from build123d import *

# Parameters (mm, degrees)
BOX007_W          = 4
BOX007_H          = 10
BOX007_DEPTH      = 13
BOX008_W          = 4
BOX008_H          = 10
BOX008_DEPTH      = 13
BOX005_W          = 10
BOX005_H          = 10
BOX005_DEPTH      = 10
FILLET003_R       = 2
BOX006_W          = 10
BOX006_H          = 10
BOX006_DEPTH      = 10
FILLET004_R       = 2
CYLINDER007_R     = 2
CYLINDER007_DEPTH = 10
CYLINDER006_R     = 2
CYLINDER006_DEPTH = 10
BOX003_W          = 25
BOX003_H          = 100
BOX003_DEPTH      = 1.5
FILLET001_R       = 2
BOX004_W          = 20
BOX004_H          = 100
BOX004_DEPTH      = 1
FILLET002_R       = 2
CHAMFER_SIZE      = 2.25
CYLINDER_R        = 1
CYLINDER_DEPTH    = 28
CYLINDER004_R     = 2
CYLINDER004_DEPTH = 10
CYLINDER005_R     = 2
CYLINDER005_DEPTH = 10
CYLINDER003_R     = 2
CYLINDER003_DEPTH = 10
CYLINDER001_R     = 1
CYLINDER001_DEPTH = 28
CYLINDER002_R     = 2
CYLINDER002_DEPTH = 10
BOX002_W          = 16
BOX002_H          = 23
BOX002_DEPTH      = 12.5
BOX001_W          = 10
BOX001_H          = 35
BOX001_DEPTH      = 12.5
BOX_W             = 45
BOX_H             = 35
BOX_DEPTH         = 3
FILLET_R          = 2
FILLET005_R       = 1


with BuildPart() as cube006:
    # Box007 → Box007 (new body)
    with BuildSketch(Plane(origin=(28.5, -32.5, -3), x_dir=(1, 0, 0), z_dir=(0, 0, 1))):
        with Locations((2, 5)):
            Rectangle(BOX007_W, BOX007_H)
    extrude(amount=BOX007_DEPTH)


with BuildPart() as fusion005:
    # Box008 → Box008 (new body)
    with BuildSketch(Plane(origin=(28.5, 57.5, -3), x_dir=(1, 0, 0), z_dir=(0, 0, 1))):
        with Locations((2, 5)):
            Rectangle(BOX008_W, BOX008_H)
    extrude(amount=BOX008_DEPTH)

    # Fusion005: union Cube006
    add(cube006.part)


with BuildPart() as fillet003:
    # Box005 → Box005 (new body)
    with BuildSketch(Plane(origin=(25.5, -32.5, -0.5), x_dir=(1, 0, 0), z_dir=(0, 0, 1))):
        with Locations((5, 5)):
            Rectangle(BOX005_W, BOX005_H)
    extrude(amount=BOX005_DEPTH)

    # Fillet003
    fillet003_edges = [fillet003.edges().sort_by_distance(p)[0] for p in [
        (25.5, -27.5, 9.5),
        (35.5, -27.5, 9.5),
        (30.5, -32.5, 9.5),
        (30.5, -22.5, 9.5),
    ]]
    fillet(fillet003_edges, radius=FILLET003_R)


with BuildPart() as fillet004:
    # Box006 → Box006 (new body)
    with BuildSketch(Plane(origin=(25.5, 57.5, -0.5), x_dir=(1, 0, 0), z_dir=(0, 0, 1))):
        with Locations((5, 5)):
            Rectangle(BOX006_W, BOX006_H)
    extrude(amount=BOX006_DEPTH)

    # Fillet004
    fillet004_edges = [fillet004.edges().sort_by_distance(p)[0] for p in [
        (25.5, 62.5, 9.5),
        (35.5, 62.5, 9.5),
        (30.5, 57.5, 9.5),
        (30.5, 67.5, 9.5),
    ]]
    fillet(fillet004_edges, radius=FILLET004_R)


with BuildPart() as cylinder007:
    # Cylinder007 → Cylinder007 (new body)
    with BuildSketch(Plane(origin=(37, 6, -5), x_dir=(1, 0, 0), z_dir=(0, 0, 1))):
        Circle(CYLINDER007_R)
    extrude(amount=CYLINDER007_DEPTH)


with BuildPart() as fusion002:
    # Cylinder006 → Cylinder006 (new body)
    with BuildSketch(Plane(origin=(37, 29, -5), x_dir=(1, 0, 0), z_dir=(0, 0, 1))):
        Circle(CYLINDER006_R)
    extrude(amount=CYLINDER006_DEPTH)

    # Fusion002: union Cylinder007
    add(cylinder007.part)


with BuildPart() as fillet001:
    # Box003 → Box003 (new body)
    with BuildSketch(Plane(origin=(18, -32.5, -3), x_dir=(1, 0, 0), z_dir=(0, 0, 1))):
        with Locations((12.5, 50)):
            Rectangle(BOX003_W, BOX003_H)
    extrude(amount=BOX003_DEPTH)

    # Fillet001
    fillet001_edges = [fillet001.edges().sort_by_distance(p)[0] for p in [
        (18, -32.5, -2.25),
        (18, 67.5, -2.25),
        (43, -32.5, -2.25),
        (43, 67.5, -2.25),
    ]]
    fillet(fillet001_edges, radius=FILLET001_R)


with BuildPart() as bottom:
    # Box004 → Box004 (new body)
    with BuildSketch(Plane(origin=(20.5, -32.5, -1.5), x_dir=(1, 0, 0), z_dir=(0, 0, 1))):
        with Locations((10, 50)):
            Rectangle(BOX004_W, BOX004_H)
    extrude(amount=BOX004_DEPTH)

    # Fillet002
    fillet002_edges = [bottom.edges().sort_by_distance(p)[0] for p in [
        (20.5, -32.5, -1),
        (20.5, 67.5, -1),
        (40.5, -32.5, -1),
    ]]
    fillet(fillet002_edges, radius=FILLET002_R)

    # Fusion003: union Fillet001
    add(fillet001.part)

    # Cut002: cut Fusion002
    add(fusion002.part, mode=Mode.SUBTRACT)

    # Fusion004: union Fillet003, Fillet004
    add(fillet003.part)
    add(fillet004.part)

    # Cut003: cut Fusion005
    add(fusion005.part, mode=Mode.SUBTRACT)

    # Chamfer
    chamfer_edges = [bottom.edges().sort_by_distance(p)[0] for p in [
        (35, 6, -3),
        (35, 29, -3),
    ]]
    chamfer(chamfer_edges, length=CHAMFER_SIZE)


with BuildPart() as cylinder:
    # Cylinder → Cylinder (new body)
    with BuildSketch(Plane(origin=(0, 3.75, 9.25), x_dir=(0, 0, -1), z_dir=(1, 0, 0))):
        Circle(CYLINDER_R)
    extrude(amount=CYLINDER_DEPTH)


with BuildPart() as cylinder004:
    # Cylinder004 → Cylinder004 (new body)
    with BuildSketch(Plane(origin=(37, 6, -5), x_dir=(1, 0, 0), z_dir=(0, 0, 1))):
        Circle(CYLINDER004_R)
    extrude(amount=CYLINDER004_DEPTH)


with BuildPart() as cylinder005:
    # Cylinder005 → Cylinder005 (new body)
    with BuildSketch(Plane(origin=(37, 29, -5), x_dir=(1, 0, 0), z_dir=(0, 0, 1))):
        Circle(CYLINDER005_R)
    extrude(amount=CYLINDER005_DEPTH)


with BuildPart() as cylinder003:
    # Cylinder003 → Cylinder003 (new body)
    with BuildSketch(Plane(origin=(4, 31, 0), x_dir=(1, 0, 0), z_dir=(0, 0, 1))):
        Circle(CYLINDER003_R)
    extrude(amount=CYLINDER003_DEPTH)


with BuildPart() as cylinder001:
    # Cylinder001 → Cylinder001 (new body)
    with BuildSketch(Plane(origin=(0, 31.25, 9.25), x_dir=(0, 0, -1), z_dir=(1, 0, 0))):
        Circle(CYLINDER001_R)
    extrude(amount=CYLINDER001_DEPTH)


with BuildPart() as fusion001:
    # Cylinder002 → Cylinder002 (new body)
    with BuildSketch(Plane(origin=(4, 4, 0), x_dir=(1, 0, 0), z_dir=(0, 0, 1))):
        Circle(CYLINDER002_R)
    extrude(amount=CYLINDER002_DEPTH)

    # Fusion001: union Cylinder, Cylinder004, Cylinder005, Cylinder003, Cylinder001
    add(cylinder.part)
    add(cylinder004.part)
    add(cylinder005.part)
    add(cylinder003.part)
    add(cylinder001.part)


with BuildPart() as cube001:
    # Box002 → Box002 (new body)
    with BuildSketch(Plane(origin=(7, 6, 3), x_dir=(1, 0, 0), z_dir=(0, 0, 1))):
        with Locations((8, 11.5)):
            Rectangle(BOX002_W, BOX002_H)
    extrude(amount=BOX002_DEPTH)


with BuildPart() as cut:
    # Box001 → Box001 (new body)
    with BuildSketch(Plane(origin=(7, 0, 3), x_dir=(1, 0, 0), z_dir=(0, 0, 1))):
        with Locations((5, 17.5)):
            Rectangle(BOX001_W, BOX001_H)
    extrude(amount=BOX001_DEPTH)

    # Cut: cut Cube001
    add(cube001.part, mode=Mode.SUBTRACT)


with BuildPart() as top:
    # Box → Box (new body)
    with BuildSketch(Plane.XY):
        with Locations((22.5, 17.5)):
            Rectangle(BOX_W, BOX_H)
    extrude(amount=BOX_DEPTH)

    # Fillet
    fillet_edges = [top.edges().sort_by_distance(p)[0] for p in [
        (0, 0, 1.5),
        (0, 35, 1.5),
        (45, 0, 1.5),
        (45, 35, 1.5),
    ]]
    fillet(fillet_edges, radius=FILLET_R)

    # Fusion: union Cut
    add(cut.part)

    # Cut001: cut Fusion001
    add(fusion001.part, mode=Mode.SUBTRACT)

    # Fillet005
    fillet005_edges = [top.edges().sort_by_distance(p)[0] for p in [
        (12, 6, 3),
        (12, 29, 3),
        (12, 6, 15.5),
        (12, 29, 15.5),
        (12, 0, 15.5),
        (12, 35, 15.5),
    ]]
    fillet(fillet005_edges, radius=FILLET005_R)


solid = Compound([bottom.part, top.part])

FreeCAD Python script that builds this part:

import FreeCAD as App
import Part
import Sketcher

V = App.Vector
Q = App.Units.Quantity


def edges_at(feature, points):
    """Names of the edges that pass closest to the given points."""
    edges = feature.Shape.Edges
    near = lambda p: min(range(len(edges)), key=lambda i: edges[i].distToShape(Part.Vertex(*p))[0])
    return sorted({f"Edge{near(p) + 1}" for p in points})


def add_polygon(sketch, points):
    """Adds a closed chain of lines whose ends are joined by coincident constraints."""
    first, n = sketch.GeometryCount, len(points)
    for a, b in zip(points, points[1:] + points[:1]):
        sketch.addGeometry(Part.LineSegment(App.Vector(*a, 0), App.Vector(*b, 0)), False)
    for i in range(n):
        sketch.addConstraint(Sketcher.Constraint("Coincident", first + i, 2, first + (i + 1) % n, 1))

doc = App.newDocument("Part")
body = doc.addObject("PartDesign::Body", "Body")

# Sketch on XY plane
sketch1 = body.newObject("Sketcher::SketchObject", "Sketch")
sketch1.AttachmentSupport = (doc.getObject("XY_Plane"), [""])
sketch1.MapMode = "FlatFace"
sketch1.AttachmentOffset = App.Placement(V(0, 0, -3), App.Rotation())
add_polygon(sketch1, [(28.5, -22.5), (28.5, -32.5), (32.5, -32.5), (32.5, -22.5)])  # lines 0-3
sketch1.addConstraint([
    Sketcher.Constraint("Vertical", 0),
    Sketcher.Constraint("Horizontal", 1),
    Sketcher.Constraint("Vertical", 2),
    Sketcher.Constraint("Horizontal", 3),
    Sketcher.Constraint("DistanceX", 1, 1, 1, 2, Q("4 mm")),
    Sketcher.Constraint("DistanceY", 0, 2, 0, 1, Q("10 mm")),
    Sketcher.Constraint("DistanceX", -1, 1, 0, 2, Q("28.5 mm")),
    Sketcher.Constraint("DistanceY", 0, 2, -1, 1, Q("32.5 mm")),
])
pad1 = body.newObject("PartDesign::Pad", "Pad")
pad1.Profile = sketch1
pad1.Length = 13
body2 = doc.addObject("PartDesign::Body", "Body001")
body2.AllowCompound = True

# Sketch on XY plane
sketch2 = body2.newObject("Sketcher::SketchObject", "Sketch001")
sketch2.AttachmentSupport = (doc.getObject("XY_Plane001"), [""])
sketch2.MapMode = "FlatFace"
sketch2.AttachmentOffset = App.Placement(V(0, 0, -3), App.Rotation())
add_polygon(sketch2, [(28.5, 67.5), (28.5, 57.5), (32.5, 57.5), (32.5, 67.5)])  # lines 0-3
sketch2.addConstraint([
    Sketcher.Constraint("Vertical", 0),
    Sketcher.Constraint("Horizontal", 1),
    Sketcher.Constraint("Vertical", 2),
    Sketcher.Constraint("Horizontal", 3),
    Sketcher.Constraint("DistanceX", 1, 1, 1, 2, Q("4 mm")),
    Sketcher.Constraint("DistanceY", 0, 2, 0, 1, Q("10 mm")),
    Sketcher.Constraint("DistanceX", -1, 1, 0, 2, Q("28.5 mm")),
    Sketcher.Constraint("DistanceY", -1, 1, 0, 2, Q("57.5 mm")),
])
pad2 = body2.newObject("PartDesign::Pad", "Pad001")
pad2.Profile = sketch2
pad2.Length = 13
doc.recompute()

boolean = body2.newObject("PartDesign::Boolean", "Boolean")
boolean.Type = "Fuse"
boolean.addObjects([body])
body3 = doc.addObject("PartDesign::Body", "Body002")

# Sketch on XY plane
sketch3 = body3.newObject("Sketcher::SketchObject", "Sketch002")
sketch3.AttachmentSupport = (doc.getObject("XY_Plane002"), [""])
sketch3.MapMode = "FlatFace"
sketch3.AttachmentOffset = App.Placement(V(0, 0, -0.5), App.Rotation())
add_polygon(sketch3, [(26, -22), (26, -32), (36, -32), (36, -22)])  # lines 0-3
sketch3.addConstraint([
    Sketcher.Constraint("Vertical", 0),
    Sketcher.Constraint("Horizontal", 1),
    Sketcher.Constraint("Vertical", 2),
    Sketcher.Constraint("Horizontal", 3),
    Sketcher.Constraint("Equal", 3, 0),
    Sketcher.Constraint("DistanceX", 1, 1, 1, 2, Q("10 mm")),
    Sketcher.Constraint("DistanceX", -1, 1, 0, 2, Q("25.5 mm")),
    Sketcher.Constraint("DistanceY", 0, 2, -1, 1, Q("32.5 mm")),
])
pad3 = body3.newObject("PartDesign::Pad", "Pad002")
pad3.Profile = sketch3
pad3.Length = 10
doc.recompute()

fillet = body3.newObject("PartDesign::Fillet", "Fillet")
fillet.Base = (pad3, edges_at(pad3, [
    (25.5, -27.5, 9.5),
    (35.5, -27.5, 9.5),
    (30.5, -32.5, 9.5),
    (30.5, -22.5, 9.5),
]))
fillet.Radius = 2
body4 = doc.addObject("PartDesign::Body", "Body003")

# Sketch on XY plane
sketch4 = body4.newObject("Sketcher::SketchObject", "Sketch003")
sketch4.AttachmentSupport = (doc.getObject("XY_Plane003"), [""])
sketch4.MapMode = "FlatFace"
sketch4.AttachmentOffset = App.Placement(V(0, 0, -0.5), App.Rotation())
add_polygon(sketch4, [(26, 68), (26, 58), (36, 58), (36, 68)])  # lines 0-3
sketch4.addConstraint([
    Sketcher.Constraint("Vertical", 0),
    Sketcher.Constraint("Horizontal", 1),
    Sketcher.Constraint("Vertical", 2),
    Sketcher.Constraint("Horizontal", 3),
    Sketcher.Constraint("Equal", 3, 0),
    Sketcher.Constraint("DistanceX", 1, 1, 1, 2, Q("10 mm")),
    Sketcher.Constraint("DistanceX", -1, 1, 0, 2, Q("25.5 mm")),
    Sketcher.Constraint("DistanceY", -1, 1, 0, 2, Q("57.5 mm")),
])
pad4 = body4.newObject("PartDesign::Pad", "Pad003")
pad4.Profile = sketch4
pad4.Length = 10
doc.recompute()

fillet2 = body4.newObject("PartDesign::Fillet", "Fillet001")
fillet2.Base = (pad4, edges_at(pad4, [
    (25.5, 62.5, 9.5),
    (35.5, 62.5, 9.5),
    (30.5, 57.5, 9.5),
    (30.5, 67.5, 9.5),
]))
fillet2.Radius = 2
body5 = doc.addObject("PartDesign::Body", "Body004")

# Sketch on XY plane
sketch5 = body5.newObject("Sketcher::SketchObject", "Sketch004")
sketch5.AttachmentSupport = (doc.getObject("XY_Plane004"), [""])
sketch5.MapMode = "FlatFace"
sketch5.AttachmentOffset = App.Placement(V(0, 0, -5), App.Rotation())
sketch5.addGeometry(Part.Circle(V(37, 6, 0), V(0, 0, 1), 2), False)
sketch5.addConstraint([
    Sketcher.Constraint("Diameter", 0, Q("4 mm")),
    Sketcher.Constraint("DistanceX", -1, 1, 0, 3, Q("37 mm")),
    Sketcher.Constraint("DistanceY", -1, 1, 0, 3, Q("6 mm")),
])
pad5 = body5.newObject("PartDesign::Pad", "Pad004")
pad5.Profile = sketch5
pad5.Length = 10
body6 = doc.addObject("PartDesign::Body", "Body005")
body6.AllowCompound = True

# Sketch on XY plane
sketch6 = body6.newObject("Sketcher::SketchObject", "Sketch005")
sketch6.AttachmentSupport = (doc.getObject("XY_Plane005"), [""])
sketch6.MapMode = "FlatFace"
sketch6.AttachmentOffset = App.Placement(V(0, 0, -5), App.Rotation())
sketch6.addGeometry(Part.Circle(V(37, 29, 0), V(0, 0, 1), 2), False)
sketch6.addConstraint([
    Sketcher.Constraint("Diameter", 0, Q("4 mm")),
    Sketcher.Constraint("DistanceX", -1, 1, 0, 3, Q("37 mm")),
    Sketcher.Constraint("DistanceY", -1, 1, 0, 3, Q("29 mm")),
])
pad6 = body6.newObject("PartDesign::Pad", "Pad005")
pad6.Profile = sketch6
pad6.Length = 10
doc.recompute()

boolean2 = body6.newObject("PartDesign::Boolean", "Boolean001")
boolean2.Type = "Fuse"
boolean2.addObjects([body5])
body7 = doc.addObject("PartDesign::Body", "Body006")

# Sketch on XY plane
sketch7 = body7.newObject("Sketcher::SketchObject", "Sketch006")
sketch7.AttachmentSupport = (doc.getObject("XY_Plane006"), [""])
sketch7.MapMode = "FlatFace"
sketch7.AttachmentOffset = App.Placement(V(0, 0, -3), App.Rotation())
add_polygon(sketch7, [(18, 68), (18, -32), (43, -32), (43, 68)])  # lines 0-3
sketch7.addConstraint([
    Sketcher.Constraint("Vertical", 0),
    Sketcher.Constraint("Horizontal", 1),
    Sketcher.Constraint("Vertical", 2),
    Sketcher.Constraint("Horizontal", 3),
    Sketcher.Constraint("DistanceX", 1, 1, 1, 2, Q("25 mm")),
    Sketcher.Constraint("DistanceY", 0, 2, 0, 1, Q("100 mm")),
    Sketcher.Constraint("DistanceX", -1, 1, 0, 2, Q("18 mm")),
    Sketcher.Constraint("DistanceY", 0, 2, -1, 1, Q("32.5 mm")),
])
pad7 = body7.newObject("PartDesign::Pad", "Pad006")
pad7.Profile = sketch7
pad7.Length = 1.5
doc.recompute()

fillet3 = body7.newObject("PartDesign::Fillet", "Fillet002")
fillet3.Base = (pad7, edges_at(pad7, [
    (18, -32.5, -2.25),
    (18, 67.5, -2.25),
    (43, -32.5, -2.25),
    (43, 67.5, -2.25),
]))
fillet3.Radius = 2
body8 = doc.addObject("PartDesign::Body", "Body007")

# Sketch on XY plane
sketch8 = body8.newObject("Sketcher::SketchObject", "Sketch007")
sketch8.AttachmentSupport = (doc.getObject("XY_Plane007"), [""])
sketch8.MapMode = "FlatFace"
sketch8.AttachmentOffset = App.Placement(V(0, 0, -1.5), App.Rotation())
add_polygon(sketch8, [(20, 68), (20, -32), (40, -32), (40, 68)])  # lines 0-3
sketch8.addConstraint([
    Sketcher.Constraint("Vertical", 0),
    Sketcher.Constraint("Horizontal", 1),
    Sketcher.Constraint("Vertical", 2),
    Sketcher.Constraint("Horizontal", 3),
    Sketcher.Constraint("DistanceX", 1, 1, 1, 2, Q("20 mm")),
    Sketcher.Constraint("DistanceY", 0, 2, 0, 1, Q("100 mm")),
    Sketcher.Constraint("DistanceX", -1, 1, 0, 2, Q("20.5 mm")),
    Sketcher.Constraint("DistanceY", 0, 2, -1, 1, Q("32.5 mm")),
])
pad8 = body8.newObject("PartDesign::Pad", "Pad007")
pad8.Profile = sketch8
pad8.Length = 1
doc.recompute()

fillet4 = body8.newObject("PartDesign::Fillet", "Fillet003")
fillet4.Base = (pad8, edges_at(pad8, [(20.5, -32.5, -1), (20.5, 67.5, -1), (40.5, -32.5, -1)]))
fillet4.Radius = 2
doc.recompute()

boolean3 = body8.newObject("PartDesign::Boolean", "Boolean002")
boolean3.Type = "Fuse"
boolean3.addObjects([body7])
doc.recompute()

boolean4 = body8.newObject("PartDesign::Boolean", "Boolean003")
boolean4.Type = "Cut"
boolean4.addObjects([body6])
doc.recompute()

boolean5 = body8.newObject("PartDesign::Boolean", "Boolean004")
boolean5.Type = "Fuse"
boolean5.addObjects([body3])
doc.recompute()

boolean6 = body8.newObject("PartDesign::Boolean", "Boolean005")
boolean6.Type = "Fuse"
boolean6.addObjects([body4])
doc.recompute()

boolean7 = body8.newObject("PartDesign::Boolean", "Boolean006")
boolean7.Type = "Cut"
boolean7.addObjects([body2])
doc.recompute()

chamfer = body8.newObject("PartDesign::Chamfer", "Chamfer")
chamfer.Base = (boolean7, edges_at(boolean7, [(35, 6, -3), (35, 29, -3)]))
chamfer.Size = 2.25
body9 = doc.addObject("PartDesign::Body", "Body008")

# Sketch on YZ plane
sketch9 = body9.newObject("Sketcher::SketchObject", "Sketch008")
sketch9.AttachmentSupport = (doc.getObject("YZ_Plane008"), [""])
sketch9.MapMode = "FlatFace"
sketch9.addGeometry(Part.Circle(V(3.8, 9.2, 0), V(0, 0, 1), 1), False)
sketch9.addConstraint([
    Sketcher.Constraint("Diameter", 0, Q("2 mm")),
    Sketcher.Constraint("DistanceX", -1, 1, 0, 3, Q("3.75 mm")),
    Sketcher.Constraint("DistanceY", -1, 1, 0, 3, Q("9.25 mm")),
])
pad9 = body9.newObject("PartDesign::Pad", "Pad008")
pad9.Profile = sketch9
pad9.Length = 28
body10 = doc.addObject("PartDesign::Body", "Body009")

# Sketch on XY plane
sketch10 = body10.newObject("Sketcher::SketchObject", "Sketch009")
sketch10.AttachmentSupport = (doc.getObject("XY_Plane009"), [""])
sketch10.MapMode = "FlatFace"
sketch10.AttachmentOffset = App.Placement(V(0, 0, -5), App.Rotation())
sketch10.addGeometry(Part.Circle(V(37, 6, 0), V(0, 0, 1), 2), False)
sketch10.addConstraint([
    Sketcher.Constraint("Diameter", 0, Q("4 mm")),
    Sketcher.Constraint("DistanceX", -1, 1, 0, 3, Q("37 mm")),
    Sketcher.Constraint("DistanceY", -1, 1, 0, 3, Q("6 mm")),
])
pad10 = body10.newObject("PartDesign::Pad", "Pad009")
pad10.Profile = sketch10
pad10.Length = 10
body11 = doc.addObject("PartDesign::Body", "Body010")

# Sketch on XY plane
sketch11 = body11.newObject("Sketcher::SketchObject", "Sketch010")
sketch11.AttachmentSupport = (doc.getObject("XY_Plane010"), [""])
sketch11.MapMode = "FlatFace"
sketch11.AttachmentOffset = App.Placement(V(0, 0, -5), App.Rotation())
sketch11.addGeometry(Part.Circle(V(37, 29, 0), V(0, 0, 1), 2), False)
sketch11.addConstraint([
    Sketcher.Constraint("Diameter", 0, Q("4 mm")),
    Sketcher.Constraint("DistanceX", -1, 1, 0, 3, Q("37 mm")),
    Sketcher.Constraint("DistanceY", -1, 1, 0, 3, Q("29 mm")),
])
pad11 = body11.newObject("PartDesign::Pad", "Pad010")
pad11.Profile = sketch11
pad11.Length = 10
body12 = doc.addObject("PartDesign::Body", "Body011")

# Sketch on XY plane
sketch12 = body12.newObject("Sketcher::SketchObject", "Sketch011")
sketch12.AttachmentSupport = (doc.getObject("XY_Plane011"), [""])
sketch12.MapMode = "FlatFace"
sketch12.addGeometry(Part.Circle(V(4, 31, 0), V(0, 0, 1), 2), False)
sketch12.addConstraint([
    Sketcher.Constraint("Diameter", 0, Q("4 mm")),
    Sketcher.Constraint("DistanceX", -1, 1, 0, 3, Q("4 mm")),
    Sketcher.Constraint("DistanceY", -1, 1, 0, 3, Q("31 mm")),
])
pad12 = body12.newObject("PartDesign::Pad", "Pad011")
pad12.Profile = sketch12
pad12.Length = 10
body13 = doc.addObject("PartDesign::Body", "Body012")

# Sketch on YZ plane
sketch13 = body13.newObject("Sketcher::SketchObject", "Sketch012")
sketch13.AttachmentSupport = (doc.getObject("YZ_Plane012"), [""])
sketch13.MapMode = "FlatFace"
sketch13.addGeometry(Part.Circle(V(31.2, 9.2, 0), V(0, 0, 1), 1), False)
sketch13.addConstraint([
    Sketcher.Constraint("Diameter", 0, Q("2 mm")),
    Sketcher.Constraint("DistanceX", -1, 1, 0, 3, Q("31.25 mm")),
    Sketcher.Constraint("DistanceY", -1, 1, 0, 3, Q("9.25 mm")),
])
pad13 = body13.newObject("PartDesign::Pad", "Pad012")
pad13.Profile = sketch13
pad13.Length = 28
body14 = doc.addObject("PartDesign::Body", "Body013")
body14.AllowCompound = True

# Sketch on XY plane
sketch14 = body14.newObject("Sketcher::SketchObject", "Sketch013")
sketch14.AttachmentSupport = (doc.getObject("XY_Plane013"), [""])
sketch14.MapMode = "FlatFace"
sketch14.addGeometry(Part.Circle(V(4, 4, 0), V(0, 0, 1), 2), False)
sketch14.addConstraint([
    Sketcher.Constraint("Diameter", 0, Q("4 mm")),
    Sketcher.Constraint("DistanceX", -1, 1, 0, 3, Q("4 mm")),
    Sketcher.Constraint("DistanceY", -1, 1, 0, 3, Q("4 mm")),
])
pad14 = body14.newObject("PartDesign::Pad", "Pad013")
pad14.Profile = sketch14
pad14.Length = 10
doc.recompute()

boolean8 = body14.newObject("PartDesign::Boolean", "Boolean007")
boolean8.Type = "Fuse"
boolean8.addObjects([body9])
doc.recompute()

boolean9 = body14.newObject("PartDesign::Boolean", "Boolean008")
boolean9.Type = "Fuse"
boolean9.addObjects([body10])
doc.recompute()

boolean10 = body14.newObject("PartDesign::Boolean", "Boolean009")
boolean10.Type = "Fuse"
boolean10.addObjects([body11])
doc.recompute()

boolean11 = body14.newObject("PartDesign::Boolean", "Boolean010")
boolean11.Type = "Fuse"
boolean11.addObjects([body12])
doc.recompute()

boolean12 = body14.newObject("PartDesign::Boolean", "Boolean011")
boolean12.Type = "Fuse"
boolean12.addObjects([body13])
body15 = doc.addObject("PartDesign::Body", "Body014")

# Sketch on XY plane
sketch15 = body15.newObject("Sketcher::SketchObject", "Sketch014")
sketch15.AttachmentSupport = (doc.getObject("XY_Plane014"), [""])
sketch15.MapMode = "FlatFace"
sketch15.AttachmentOffset = App.Placement(V(0, 0, 3), App.Rotation())
add_polygon(sketch15, [(7, 29), (7, 6), (23, 6), (23, 29)])  # lines 0-3
sketch15.addConstraint([
    Sketcher.Constraint("Vertical", 0),
    Sketcher.Constraint("Horizontal", 1),
    Sketcher.Constraint("Vertical", 2),
    Sketcher.Constraint("Horizontal", 3),
    Sketcher.Constraint("DistanceX", 1, 1, 1, 2, Q("16 mm")),
    Sketcher.Constraint("DistanceY", 0, 2, 0, 1, Q("23 mm")),
    Sketcher.Constraint("DistanceX", -1, 1, 0, 2, Q("7 mm")),
    Sketcher.Constraint("DistanceY", -1, 1, 0, 2, Q("6 mm")),
])
pad15 = body15.newObject("PartDesign::Pad", "Pad014")
pad15.Profile = sketch15
pad15.Length = 12.5
body16 = doc.addObject("PartDesign::Body", "Body015")
body16.AllowCompound = True

# Sketch on XY plane
sketch16 = body16.newObject("Sketcher::SketchObject", "Sketch015")
sketch16.AttachmentSupport = (doc.getObject("XY_Plane015"), [""])
sketch16.MapMode = "FlatFace"
sketch16.AttachmentOffset = App.Placement(V(0, 0, 3), App.Rotation())
add_polygon(sketch16, [(7, 35), (7, 0), (17, 0), (17, 35)])  # lines 0-3
sketch16.addConstraint([
    Sketcher.Constraint("Vertical", 0),
    Sketcher.Constraint("Horizontal", 1),
    Sketcher.Constraint("Vertical", 2),
    Sketcher.Constraint("Horizontal", 3),
    Sketcher.Constraint("PointOnObject", 0, 2, -1),
    Sketcher.Constraint("DistanceX", 1, 1, 1, 2, Q("10 mm")),
    Sketcher.Constraint("DistanceY", 0, 2, 0, 1, Q("35 mm")),
    Sketcher.Constraint("DistanceX", -1, 1, 0, 2, Q("7 mm")),
])
pad16 = body16.newObject("PartDesign::Pad", "Pad015")
pad16.Profile = sketch16
pad16.Length = 12.5
doc.recompute()

boolean13 = body16.newObject("PartDesign::Boolean", "Boolean012")
boolean13.Type = "Cut"
boolean13.addObjects([body15])
body17 = doc.addObject("PartDesign::Body", "Body016")

# Sketch on XY plane
sketch17 = body17.newObject("Sketcher::SketchObject", "Sketch016")
sketch17.AttachmentSupport = (doc.getObject("XY_Plane016"), [""])
sketch17.MapMode = "FlatFace"
add_polygon(sketch17, [(0, 35), (0, 0), (45, 0), (45, 35)])  # lines 0-3
sketch17.addConstraint([
    Sketcher.Constraint("Vertical", 0),
    Sketcher.Constraint("Horizontal", 1),
    Sketcher.Constraint("Vertical", 2),
    Sketcher.Constraint("Horizontal", 3),
    Sketcher.Constraint("Coincident", 0, 2, -1, 1),
    Sketcher.Constraint("DistanceX", 1, 1, 1, 2, Q("45 mm")),
    Sketcher.Constraint("DistanceY", 0, 2, 0, 1, Q("35 mm")),
])
pad17 = body17.newObject("PartDesign::Pad", "Pad016")
pad17.Profile = sketch17
pad17.Length = 3
doc.recompute()

fillet5 = body17.newObject("PartDesign::Fillet", "Fillet004")
fillet5.Base = (pad17, edges_at(pad17, [
    (0, 0, 1.5),
    (0, 35, 1.5),
    (45, 0, 1.5),
    (45, 35, 1.5),
]))
fillet5.Radius = 2
doc.recompute()

boolean14 = body17.newObject("PartDesign::Boolean", "Boolean013")
boolean14.Type = "Fuse"
boolean14.addObjects([body16])
doc.recompute()

boolean15 = body17.newObject("PartDesign::Boolean", "Boolean014")
boolean15.Type = "Cut"
boolean15.addObjects([body14])
doc.recompute()

fillet6 = body17.newObject("PartDesign::Fillet", "Fillet005")
fillet6.Base = (boolean15, edges_at(boolean15, [
    (12, 6, 3),
    (12, 29, 3),
    (12, 6, 15.5),
    (12, 29, 15.5),
    (12, 0, 15.5),
    (12, 35, 15.5),
]))
fillet6.Radius = 1

doc.recompute()
